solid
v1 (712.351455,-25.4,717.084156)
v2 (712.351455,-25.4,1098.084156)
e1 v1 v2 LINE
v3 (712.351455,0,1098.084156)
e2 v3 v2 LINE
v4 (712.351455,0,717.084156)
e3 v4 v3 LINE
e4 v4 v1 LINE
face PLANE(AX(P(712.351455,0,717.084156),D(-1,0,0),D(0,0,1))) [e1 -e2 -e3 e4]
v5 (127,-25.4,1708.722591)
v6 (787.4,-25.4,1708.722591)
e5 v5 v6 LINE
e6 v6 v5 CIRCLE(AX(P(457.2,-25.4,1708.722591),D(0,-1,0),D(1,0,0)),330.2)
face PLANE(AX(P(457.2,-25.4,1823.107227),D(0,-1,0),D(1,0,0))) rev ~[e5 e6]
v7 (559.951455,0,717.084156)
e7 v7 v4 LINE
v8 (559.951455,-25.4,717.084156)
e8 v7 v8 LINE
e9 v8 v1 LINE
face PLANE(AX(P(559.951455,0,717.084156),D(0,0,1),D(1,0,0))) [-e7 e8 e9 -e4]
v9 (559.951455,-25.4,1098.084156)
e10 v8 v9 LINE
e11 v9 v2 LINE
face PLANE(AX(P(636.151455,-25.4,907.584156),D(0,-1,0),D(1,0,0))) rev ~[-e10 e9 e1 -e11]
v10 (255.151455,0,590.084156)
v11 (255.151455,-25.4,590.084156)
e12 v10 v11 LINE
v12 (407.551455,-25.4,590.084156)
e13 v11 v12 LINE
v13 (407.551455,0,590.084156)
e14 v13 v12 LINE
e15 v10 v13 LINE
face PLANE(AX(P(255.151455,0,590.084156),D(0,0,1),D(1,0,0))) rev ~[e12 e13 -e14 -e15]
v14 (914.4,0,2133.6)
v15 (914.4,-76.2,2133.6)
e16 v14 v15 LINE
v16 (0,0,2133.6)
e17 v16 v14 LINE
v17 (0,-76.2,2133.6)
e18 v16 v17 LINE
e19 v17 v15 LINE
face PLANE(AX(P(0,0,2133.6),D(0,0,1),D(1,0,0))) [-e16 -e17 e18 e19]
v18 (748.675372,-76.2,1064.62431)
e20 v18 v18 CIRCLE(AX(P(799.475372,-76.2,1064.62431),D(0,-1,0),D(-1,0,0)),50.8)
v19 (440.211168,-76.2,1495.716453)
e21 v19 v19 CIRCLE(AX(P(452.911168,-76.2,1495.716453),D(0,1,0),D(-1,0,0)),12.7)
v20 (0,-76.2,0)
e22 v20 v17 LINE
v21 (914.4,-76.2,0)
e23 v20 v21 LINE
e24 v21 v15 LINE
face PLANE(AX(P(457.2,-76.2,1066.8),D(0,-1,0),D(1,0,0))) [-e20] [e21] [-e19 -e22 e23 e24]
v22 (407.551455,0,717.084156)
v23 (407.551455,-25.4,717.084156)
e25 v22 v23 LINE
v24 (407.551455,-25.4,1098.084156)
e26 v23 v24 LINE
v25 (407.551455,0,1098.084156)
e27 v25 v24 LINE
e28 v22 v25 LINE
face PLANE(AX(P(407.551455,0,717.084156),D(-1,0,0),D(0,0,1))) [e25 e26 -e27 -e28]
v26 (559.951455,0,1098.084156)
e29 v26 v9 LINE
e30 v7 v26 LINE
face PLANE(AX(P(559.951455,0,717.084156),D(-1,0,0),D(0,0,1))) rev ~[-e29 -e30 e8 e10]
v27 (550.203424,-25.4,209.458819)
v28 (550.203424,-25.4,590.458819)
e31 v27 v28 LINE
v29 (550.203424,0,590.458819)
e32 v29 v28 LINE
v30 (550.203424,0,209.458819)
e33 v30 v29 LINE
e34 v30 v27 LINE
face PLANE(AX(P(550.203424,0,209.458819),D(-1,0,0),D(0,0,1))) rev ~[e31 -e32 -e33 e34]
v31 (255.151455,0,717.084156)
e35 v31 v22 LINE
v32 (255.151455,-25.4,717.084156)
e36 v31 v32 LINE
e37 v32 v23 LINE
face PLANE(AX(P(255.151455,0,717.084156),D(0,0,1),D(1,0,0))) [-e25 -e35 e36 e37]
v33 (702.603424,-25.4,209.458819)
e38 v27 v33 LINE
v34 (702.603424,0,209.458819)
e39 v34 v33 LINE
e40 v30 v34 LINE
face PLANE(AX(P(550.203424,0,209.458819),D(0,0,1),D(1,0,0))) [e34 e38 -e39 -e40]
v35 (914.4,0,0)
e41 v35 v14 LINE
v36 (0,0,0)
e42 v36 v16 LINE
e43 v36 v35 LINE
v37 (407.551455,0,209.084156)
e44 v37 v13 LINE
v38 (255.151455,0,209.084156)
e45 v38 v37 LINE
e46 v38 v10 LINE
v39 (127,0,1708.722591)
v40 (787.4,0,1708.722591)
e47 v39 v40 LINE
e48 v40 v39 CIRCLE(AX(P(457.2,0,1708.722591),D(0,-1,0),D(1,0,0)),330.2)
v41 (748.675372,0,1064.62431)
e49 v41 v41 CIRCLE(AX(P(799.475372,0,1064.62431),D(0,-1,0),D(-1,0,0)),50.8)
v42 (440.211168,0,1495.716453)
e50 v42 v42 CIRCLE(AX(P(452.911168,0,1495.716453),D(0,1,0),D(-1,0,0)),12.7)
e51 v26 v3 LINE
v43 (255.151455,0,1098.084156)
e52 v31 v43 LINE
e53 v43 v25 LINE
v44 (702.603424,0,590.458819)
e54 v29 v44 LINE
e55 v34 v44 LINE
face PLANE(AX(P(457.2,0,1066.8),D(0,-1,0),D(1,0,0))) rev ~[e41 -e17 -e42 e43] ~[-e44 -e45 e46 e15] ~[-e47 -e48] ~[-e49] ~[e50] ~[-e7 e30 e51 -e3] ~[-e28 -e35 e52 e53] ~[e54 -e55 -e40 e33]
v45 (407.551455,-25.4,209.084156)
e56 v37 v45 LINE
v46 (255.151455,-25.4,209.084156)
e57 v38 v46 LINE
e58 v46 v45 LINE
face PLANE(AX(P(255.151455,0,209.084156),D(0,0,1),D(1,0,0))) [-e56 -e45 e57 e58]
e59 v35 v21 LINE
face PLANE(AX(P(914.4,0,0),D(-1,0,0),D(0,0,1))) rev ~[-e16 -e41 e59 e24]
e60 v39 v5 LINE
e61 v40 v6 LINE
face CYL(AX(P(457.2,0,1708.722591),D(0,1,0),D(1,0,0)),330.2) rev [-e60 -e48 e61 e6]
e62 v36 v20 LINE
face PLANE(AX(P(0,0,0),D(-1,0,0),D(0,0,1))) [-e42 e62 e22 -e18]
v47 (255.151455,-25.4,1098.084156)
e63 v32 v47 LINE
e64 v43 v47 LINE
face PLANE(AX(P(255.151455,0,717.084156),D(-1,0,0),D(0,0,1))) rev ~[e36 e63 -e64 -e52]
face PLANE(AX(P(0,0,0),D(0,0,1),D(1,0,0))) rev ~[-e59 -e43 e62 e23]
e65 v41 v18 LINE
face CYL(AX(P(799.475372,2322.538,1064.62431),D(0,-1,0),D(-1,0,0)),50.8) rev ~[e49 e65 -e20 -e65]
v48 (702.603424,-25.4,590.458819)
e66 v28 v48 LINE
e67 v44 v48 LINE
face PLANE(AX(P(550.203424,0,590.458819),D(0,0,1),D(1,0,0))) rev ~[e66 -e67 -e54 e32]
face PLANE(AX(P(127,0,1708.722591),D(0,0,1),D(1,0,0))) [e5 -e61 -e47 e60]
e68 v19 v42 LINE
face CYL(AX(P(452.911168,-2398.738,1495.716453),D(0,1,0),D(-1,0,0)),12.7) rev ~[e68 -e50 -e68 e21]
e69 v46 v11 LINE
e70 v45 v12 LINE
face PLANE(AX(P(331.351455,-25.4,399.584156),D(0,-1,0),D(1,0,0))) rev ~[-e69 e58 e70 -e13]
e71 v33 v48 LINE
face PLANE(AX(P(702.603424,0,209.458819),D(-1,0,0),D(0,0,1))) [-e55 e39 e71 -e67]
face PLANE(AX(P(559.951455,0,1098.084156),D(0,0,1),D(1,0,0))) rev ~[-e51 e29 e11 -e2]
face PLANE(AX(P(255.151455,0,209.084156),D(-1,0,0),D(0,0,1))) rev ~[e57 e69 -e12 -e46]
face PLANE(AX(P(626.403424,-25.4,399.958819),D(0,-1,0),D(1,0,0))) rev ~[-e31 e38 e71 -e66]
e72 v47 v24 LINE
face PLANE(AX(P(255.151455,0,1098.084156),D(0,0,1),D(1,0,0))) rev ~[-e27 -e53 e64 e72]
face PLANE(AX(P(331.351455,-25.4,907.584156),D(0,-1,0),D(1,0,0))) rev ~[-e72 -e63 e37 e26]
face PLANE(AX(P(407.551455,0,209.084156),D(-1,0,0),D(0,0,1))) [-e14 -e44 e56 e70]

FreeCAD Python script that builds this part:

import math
import FreeCAD as App
import Part
import Sketcher
Q = App.Units.Quantity


def add_polygon(sketch, points):
    """Adds a closed chain of lines whose ends are joined by coincident constraints."""
    first, n = sketch.GeometryCount, len(points)
    for a, b in zip(points, points[1:] + points[:1]):
        sketch.addGeometry(Part.LineSegment(App.Vector(*a, 0), App.Vector(*b, 0)), False)
    for i in range(n):
        sketch.addConstraint(Sketcher.Constraint("Coincident", first + i, 2, first + (i + 1) % n, 1))

doc = App.newDocument("Part")
body = doc.addObject("PartDesign::Body", "Body")

# Sketch on XZ plane
sketch1 = doc.addObject("Sketcher::SketchObject", "Sketch")
body.addObject(sketch1)
sketch1.AttachmentSupport = (doc.XZ_Plane, [""])
sketch1.MapMode = "FlatFace"
add_polygon(sketch1, [(0, 2134), (0, 0), (914, 0), (914, 2134)])  # lines 0-3
sketch1.addConstraint(Sketcher.Constraint("Vertical", 0))
sketch1.addConstraint(Sketcher.Constraint("Horizontal", 1))
sketch1.addConstraint(Sketcher.Constraint("Vertical", 2))
sketch1.addConstraint(Sketcher.Constraint("Horizontal", 3))
sketch1.addConstraint(Sketcher.Constraint("Coincident", 0, 2, -1, 1))
sketch1.addConstraint(Sketcher.Constraint("DistanceX", 1, 1, 1, 2, Q("36 in")))
sketch1.addConstraint(Sketcher.Constraint("DistanceY", 0, 2, 0, 1, Q("84 in")))
pad1 = doc.addObject("PartDesign::Pad", "Pad")
body.addObject(pad1)
pad1.Profile = sketch1
pad1.Length = Q("3 in")

# Sketch on XZ plane
sketch2 = doc.addObject("Sketcher::SketchObject", "Sketch001")
body.addObject(sketch2)
sketch2.AttachmentSupport = (doc.XZ_Plane, [""])
sketch2.MapMode = "FlatFace"
sketch2.addGeometry(Part.Circle(App.Vector(799, 1065, 0), App.Vector(0, 0, 1), 51), False)
sketch2.addConstraint(Sketcher.Constraint("Diameter", 0, Q("4 in")))
sketch2.addConstraint(Sketcher.Constraint("DistanceX", -1, 1, 0, 3, Q("799.475372 mm")))
sketch2.addConstraint(Sketcher.Constraint("DistanceY", -1, 1, 0, 3, Q("1064.62431 mm")))
doc.recompute()
hole = doc.addObject("PartDesign::Hole", "Hole")
body.addObject(hole)
hole.Profile = sketch2
hole.ThreadType = "None"
hole.Diameter = Q("4 in")
hole.DepthType = "ThroughAll"
hole.Reversed = True

# Sketch on XZ plane
sketch3 = doc.addObject("Sketcher::SketchObject", "Sketch002")
body.addObject(sketch3)
sketch3.AttachmentSupport = (doc.XZ_Plane, [""])
sketch3.MapMode = "FlatFace"
sketch3.AttachmentOffset = App.Placement(App.Vector(0, 0, 3 * 25.4), App.Rotation())
sketch3.addGeometry(Part.Circle(App.Vector(453, 1496, 0), App.Vector(0, 0, 1), 13), False)
sketch3.addConstraint(Sketcher.Constraint("Diameter", 0, Q("1 in")))
sketch3.addConstraint(Sketcher.Constraint("DistanceX", -1, 1, 0, 3, Q("452.911168 mm")))
sketch3.addConstraint(Sketcher.Constraint("DistanceY", -1, 1, 0, 3, Q("1495.716453 mm")))
doc.recompute()
hole2 = doc.addObject("PartDesign::Hole", "Hole001")
body.addObject(hole2)
hole2.Profile = sketch3
hole2.ThreadType = "None"
hole2.Diameter = Q("1 in")
hole2.DepthType = "ThroughAll"

# Sketch on XZ plane
sketch4 = doc.addObject("Sketcher::SketchObject", "Sketch003")
body.addObject(sketch4)
sketch4.AttachmentSupport = (doc.XZ_Plane, [""])
sketch4.MapMode = "FlatFace"
sketch4.addGeometry(Part.ArcOfCircle(Part.Circle(App.Vector(457, 1709, 0), App.Vector(0, 0, 1), 330), math.radians(0), math.radians(180)), False)
sketch4.addGeometry(Part.LineSegment(App.Vector(127, 1709, 0), App.Vector(787, 1709, 0)), False)
sketch4.addConstraint(Sketcher.Constraint("Coincident", 0, 1, 1, 2))
sketch4.addConstraint(Sketcher.Constraint("Coincident", 1, 1, 0, 2))
sketch4.addConstraint(Sketcher.Constraint("Horizontal", 1))
sketch4.addConstraint(Sketcher.Constraint("Radius", 0, Q("13 in")))
sketch4.addConstraint(Sketcher.Constraint("DistanceX", -1, 1, 0, 3, Q("18 in")))
sketch4.addConstraint(Sketcher.Constraint("DistanceY", -1, 1, 0, 3, Q("1708.722591 mm")))
sketch4.addConstraint(Sketcher.Constraint("DistanceY", -1, 1, 0, 1, Q("1708.722591 mm")))
pocket1 = doc.addObject("PartDesign::Pocket", "Pocket")
body.addObject(pocket1)
pocket1.Profile = sketch4
pocket1.Length = Q("1 in")
pocket1.Reversed = True

# Sketch on XZ plane
sketch5 = doc.addObject("Sketcher::SketchObject", "Sketch004")
body.addObject(sketch5)
sketch5.AttachmentSupport = (doc.XZ_Plane, [""])
sketch5.MapMode = "FlatFace"
add_polygon(sketch5, [(255, 1098), (255, 717), (408, 717), (408, 1098)])  # lines 0-3
add_polygon(sketch5, [(560, 1098), (560, 717), (712, 717), (712, 1098)])  # lines 4-7
add_polygon(sketch5, [(255, 590), (255, 209), (408, 209), (408, 590)])  # lines 8-11
add_polygon(sketch5, [(550, 590), (550, 209), (703, 209), (703, 590)])  # lines 12-15
sketch5.addConstraint(Sketcher.Constraint("Vertical", 0))
sketch5.addConstraint(Sketcher.Constraint("Horizontal", 1))
sketch5.addConstraint(Sketcher.Constraint("Vertical", 2))
sketch5.addConstraint(Sketcher.Constraint("Horizontal", 3))
sketch5.addConstraint(Sketcher.Constraint("Vertical", 4))
sketch5.addConstraint(Sketcher.Constraint("Horizontal", 5))
sketch5.addConstraint(Sketcher.Constraint("Vertical", 6))
sketch5.addConstraint(Sketcher.Constraint("Horizontal", 7))
sketch5.addConstraint(Sketcher.Constraint("Vertical", 8))
sketch5.addConstraint(Sketcher.Constraint("Horizontal", 9))
sketch5.addConstraint(Sketcher.Constraint("Vertical", 10))
sketch5.addConstraint(Sketcher.Constraint("Horizontal", 11))
sketch5.addConstraint(Sketcher.Constraint("Vertical", 12))
sketch5.addConstraint(Sketcher.Constraint("Horizontal", 13))
sketch5.addConstraint(Sketcher.Constraint("Vertical", 14))
sketch5.addConstraint(Sketcher.Constraint("Horizontal", 15))
sketch5.addConstraint(Sketcher.Constraint("Horizontal", 1, 2, 4, 2))
sketch5.addConstraint(Sketcher.Constraint("Horizontal", 3, 2, 6, 2))
sketch5.addConstraint(Sketcher.Constraint("Vertical", 3, 2, 8, 2))
sketch5.addConstraint(Sketcher.Constraint("Vertical", 2, 2, 9, 2))
sketch5.addConstraint(Sketcher.Constraint("Equal", 3, 5))
sketch5.addConstraint(Sketcher.Constraint("Equal", 11, 13))
sketch5.addConstraint(Sketcher.Constraint("Equal", 6, 8))
sketch5.addConstraint(Sketcher.Constraint("Equal", 10, 12))
sketch5.addConstraint(Sketcher.Constraint("DistanceX", 1, 1, 1, 2, Q("6 in")))
sketch5.addConstraint(Sketcher.Constraint("DistanceY", 0, 2, 0, 1, Q("15 in")))
sketch5.addConstraint(Sketcher.Constraint("DistanceX", 1, 2, 4, 2, Q("6 in")))
sketch5.addConstraint(Sketcher.Constraint("DistanceY", 8, 2, 0, 2, Q("20 in")))
sketch5.addConstraint(Sketcher.Constraint("DistanceY", -1, 1, 12, 2, Q("209.458819 mm")))
sketch5.addConstraint(Sketcher.Constraint("DistanceX", 9, 2, 12, 2, Q("142.651969 mm")))
sketch5.addConstraint(Sketcher.Constraint("DistanceX", -1, 1, 0, 2, Q("255.151455 mm")))
sketch5.addConstraint(Sketcher.Constraint("DistanceY", -1, 1, 0, 2, Q("717.084156 mm")))
pocket2 = doc.addObject("PartDesign::Pocket", "Pocket001")
body.addObject(pocket2)
pocket2.Profile = sketch5
pocket2.Length = Q("1 in")
pocket2.Reversed = True

doc.recompute()
